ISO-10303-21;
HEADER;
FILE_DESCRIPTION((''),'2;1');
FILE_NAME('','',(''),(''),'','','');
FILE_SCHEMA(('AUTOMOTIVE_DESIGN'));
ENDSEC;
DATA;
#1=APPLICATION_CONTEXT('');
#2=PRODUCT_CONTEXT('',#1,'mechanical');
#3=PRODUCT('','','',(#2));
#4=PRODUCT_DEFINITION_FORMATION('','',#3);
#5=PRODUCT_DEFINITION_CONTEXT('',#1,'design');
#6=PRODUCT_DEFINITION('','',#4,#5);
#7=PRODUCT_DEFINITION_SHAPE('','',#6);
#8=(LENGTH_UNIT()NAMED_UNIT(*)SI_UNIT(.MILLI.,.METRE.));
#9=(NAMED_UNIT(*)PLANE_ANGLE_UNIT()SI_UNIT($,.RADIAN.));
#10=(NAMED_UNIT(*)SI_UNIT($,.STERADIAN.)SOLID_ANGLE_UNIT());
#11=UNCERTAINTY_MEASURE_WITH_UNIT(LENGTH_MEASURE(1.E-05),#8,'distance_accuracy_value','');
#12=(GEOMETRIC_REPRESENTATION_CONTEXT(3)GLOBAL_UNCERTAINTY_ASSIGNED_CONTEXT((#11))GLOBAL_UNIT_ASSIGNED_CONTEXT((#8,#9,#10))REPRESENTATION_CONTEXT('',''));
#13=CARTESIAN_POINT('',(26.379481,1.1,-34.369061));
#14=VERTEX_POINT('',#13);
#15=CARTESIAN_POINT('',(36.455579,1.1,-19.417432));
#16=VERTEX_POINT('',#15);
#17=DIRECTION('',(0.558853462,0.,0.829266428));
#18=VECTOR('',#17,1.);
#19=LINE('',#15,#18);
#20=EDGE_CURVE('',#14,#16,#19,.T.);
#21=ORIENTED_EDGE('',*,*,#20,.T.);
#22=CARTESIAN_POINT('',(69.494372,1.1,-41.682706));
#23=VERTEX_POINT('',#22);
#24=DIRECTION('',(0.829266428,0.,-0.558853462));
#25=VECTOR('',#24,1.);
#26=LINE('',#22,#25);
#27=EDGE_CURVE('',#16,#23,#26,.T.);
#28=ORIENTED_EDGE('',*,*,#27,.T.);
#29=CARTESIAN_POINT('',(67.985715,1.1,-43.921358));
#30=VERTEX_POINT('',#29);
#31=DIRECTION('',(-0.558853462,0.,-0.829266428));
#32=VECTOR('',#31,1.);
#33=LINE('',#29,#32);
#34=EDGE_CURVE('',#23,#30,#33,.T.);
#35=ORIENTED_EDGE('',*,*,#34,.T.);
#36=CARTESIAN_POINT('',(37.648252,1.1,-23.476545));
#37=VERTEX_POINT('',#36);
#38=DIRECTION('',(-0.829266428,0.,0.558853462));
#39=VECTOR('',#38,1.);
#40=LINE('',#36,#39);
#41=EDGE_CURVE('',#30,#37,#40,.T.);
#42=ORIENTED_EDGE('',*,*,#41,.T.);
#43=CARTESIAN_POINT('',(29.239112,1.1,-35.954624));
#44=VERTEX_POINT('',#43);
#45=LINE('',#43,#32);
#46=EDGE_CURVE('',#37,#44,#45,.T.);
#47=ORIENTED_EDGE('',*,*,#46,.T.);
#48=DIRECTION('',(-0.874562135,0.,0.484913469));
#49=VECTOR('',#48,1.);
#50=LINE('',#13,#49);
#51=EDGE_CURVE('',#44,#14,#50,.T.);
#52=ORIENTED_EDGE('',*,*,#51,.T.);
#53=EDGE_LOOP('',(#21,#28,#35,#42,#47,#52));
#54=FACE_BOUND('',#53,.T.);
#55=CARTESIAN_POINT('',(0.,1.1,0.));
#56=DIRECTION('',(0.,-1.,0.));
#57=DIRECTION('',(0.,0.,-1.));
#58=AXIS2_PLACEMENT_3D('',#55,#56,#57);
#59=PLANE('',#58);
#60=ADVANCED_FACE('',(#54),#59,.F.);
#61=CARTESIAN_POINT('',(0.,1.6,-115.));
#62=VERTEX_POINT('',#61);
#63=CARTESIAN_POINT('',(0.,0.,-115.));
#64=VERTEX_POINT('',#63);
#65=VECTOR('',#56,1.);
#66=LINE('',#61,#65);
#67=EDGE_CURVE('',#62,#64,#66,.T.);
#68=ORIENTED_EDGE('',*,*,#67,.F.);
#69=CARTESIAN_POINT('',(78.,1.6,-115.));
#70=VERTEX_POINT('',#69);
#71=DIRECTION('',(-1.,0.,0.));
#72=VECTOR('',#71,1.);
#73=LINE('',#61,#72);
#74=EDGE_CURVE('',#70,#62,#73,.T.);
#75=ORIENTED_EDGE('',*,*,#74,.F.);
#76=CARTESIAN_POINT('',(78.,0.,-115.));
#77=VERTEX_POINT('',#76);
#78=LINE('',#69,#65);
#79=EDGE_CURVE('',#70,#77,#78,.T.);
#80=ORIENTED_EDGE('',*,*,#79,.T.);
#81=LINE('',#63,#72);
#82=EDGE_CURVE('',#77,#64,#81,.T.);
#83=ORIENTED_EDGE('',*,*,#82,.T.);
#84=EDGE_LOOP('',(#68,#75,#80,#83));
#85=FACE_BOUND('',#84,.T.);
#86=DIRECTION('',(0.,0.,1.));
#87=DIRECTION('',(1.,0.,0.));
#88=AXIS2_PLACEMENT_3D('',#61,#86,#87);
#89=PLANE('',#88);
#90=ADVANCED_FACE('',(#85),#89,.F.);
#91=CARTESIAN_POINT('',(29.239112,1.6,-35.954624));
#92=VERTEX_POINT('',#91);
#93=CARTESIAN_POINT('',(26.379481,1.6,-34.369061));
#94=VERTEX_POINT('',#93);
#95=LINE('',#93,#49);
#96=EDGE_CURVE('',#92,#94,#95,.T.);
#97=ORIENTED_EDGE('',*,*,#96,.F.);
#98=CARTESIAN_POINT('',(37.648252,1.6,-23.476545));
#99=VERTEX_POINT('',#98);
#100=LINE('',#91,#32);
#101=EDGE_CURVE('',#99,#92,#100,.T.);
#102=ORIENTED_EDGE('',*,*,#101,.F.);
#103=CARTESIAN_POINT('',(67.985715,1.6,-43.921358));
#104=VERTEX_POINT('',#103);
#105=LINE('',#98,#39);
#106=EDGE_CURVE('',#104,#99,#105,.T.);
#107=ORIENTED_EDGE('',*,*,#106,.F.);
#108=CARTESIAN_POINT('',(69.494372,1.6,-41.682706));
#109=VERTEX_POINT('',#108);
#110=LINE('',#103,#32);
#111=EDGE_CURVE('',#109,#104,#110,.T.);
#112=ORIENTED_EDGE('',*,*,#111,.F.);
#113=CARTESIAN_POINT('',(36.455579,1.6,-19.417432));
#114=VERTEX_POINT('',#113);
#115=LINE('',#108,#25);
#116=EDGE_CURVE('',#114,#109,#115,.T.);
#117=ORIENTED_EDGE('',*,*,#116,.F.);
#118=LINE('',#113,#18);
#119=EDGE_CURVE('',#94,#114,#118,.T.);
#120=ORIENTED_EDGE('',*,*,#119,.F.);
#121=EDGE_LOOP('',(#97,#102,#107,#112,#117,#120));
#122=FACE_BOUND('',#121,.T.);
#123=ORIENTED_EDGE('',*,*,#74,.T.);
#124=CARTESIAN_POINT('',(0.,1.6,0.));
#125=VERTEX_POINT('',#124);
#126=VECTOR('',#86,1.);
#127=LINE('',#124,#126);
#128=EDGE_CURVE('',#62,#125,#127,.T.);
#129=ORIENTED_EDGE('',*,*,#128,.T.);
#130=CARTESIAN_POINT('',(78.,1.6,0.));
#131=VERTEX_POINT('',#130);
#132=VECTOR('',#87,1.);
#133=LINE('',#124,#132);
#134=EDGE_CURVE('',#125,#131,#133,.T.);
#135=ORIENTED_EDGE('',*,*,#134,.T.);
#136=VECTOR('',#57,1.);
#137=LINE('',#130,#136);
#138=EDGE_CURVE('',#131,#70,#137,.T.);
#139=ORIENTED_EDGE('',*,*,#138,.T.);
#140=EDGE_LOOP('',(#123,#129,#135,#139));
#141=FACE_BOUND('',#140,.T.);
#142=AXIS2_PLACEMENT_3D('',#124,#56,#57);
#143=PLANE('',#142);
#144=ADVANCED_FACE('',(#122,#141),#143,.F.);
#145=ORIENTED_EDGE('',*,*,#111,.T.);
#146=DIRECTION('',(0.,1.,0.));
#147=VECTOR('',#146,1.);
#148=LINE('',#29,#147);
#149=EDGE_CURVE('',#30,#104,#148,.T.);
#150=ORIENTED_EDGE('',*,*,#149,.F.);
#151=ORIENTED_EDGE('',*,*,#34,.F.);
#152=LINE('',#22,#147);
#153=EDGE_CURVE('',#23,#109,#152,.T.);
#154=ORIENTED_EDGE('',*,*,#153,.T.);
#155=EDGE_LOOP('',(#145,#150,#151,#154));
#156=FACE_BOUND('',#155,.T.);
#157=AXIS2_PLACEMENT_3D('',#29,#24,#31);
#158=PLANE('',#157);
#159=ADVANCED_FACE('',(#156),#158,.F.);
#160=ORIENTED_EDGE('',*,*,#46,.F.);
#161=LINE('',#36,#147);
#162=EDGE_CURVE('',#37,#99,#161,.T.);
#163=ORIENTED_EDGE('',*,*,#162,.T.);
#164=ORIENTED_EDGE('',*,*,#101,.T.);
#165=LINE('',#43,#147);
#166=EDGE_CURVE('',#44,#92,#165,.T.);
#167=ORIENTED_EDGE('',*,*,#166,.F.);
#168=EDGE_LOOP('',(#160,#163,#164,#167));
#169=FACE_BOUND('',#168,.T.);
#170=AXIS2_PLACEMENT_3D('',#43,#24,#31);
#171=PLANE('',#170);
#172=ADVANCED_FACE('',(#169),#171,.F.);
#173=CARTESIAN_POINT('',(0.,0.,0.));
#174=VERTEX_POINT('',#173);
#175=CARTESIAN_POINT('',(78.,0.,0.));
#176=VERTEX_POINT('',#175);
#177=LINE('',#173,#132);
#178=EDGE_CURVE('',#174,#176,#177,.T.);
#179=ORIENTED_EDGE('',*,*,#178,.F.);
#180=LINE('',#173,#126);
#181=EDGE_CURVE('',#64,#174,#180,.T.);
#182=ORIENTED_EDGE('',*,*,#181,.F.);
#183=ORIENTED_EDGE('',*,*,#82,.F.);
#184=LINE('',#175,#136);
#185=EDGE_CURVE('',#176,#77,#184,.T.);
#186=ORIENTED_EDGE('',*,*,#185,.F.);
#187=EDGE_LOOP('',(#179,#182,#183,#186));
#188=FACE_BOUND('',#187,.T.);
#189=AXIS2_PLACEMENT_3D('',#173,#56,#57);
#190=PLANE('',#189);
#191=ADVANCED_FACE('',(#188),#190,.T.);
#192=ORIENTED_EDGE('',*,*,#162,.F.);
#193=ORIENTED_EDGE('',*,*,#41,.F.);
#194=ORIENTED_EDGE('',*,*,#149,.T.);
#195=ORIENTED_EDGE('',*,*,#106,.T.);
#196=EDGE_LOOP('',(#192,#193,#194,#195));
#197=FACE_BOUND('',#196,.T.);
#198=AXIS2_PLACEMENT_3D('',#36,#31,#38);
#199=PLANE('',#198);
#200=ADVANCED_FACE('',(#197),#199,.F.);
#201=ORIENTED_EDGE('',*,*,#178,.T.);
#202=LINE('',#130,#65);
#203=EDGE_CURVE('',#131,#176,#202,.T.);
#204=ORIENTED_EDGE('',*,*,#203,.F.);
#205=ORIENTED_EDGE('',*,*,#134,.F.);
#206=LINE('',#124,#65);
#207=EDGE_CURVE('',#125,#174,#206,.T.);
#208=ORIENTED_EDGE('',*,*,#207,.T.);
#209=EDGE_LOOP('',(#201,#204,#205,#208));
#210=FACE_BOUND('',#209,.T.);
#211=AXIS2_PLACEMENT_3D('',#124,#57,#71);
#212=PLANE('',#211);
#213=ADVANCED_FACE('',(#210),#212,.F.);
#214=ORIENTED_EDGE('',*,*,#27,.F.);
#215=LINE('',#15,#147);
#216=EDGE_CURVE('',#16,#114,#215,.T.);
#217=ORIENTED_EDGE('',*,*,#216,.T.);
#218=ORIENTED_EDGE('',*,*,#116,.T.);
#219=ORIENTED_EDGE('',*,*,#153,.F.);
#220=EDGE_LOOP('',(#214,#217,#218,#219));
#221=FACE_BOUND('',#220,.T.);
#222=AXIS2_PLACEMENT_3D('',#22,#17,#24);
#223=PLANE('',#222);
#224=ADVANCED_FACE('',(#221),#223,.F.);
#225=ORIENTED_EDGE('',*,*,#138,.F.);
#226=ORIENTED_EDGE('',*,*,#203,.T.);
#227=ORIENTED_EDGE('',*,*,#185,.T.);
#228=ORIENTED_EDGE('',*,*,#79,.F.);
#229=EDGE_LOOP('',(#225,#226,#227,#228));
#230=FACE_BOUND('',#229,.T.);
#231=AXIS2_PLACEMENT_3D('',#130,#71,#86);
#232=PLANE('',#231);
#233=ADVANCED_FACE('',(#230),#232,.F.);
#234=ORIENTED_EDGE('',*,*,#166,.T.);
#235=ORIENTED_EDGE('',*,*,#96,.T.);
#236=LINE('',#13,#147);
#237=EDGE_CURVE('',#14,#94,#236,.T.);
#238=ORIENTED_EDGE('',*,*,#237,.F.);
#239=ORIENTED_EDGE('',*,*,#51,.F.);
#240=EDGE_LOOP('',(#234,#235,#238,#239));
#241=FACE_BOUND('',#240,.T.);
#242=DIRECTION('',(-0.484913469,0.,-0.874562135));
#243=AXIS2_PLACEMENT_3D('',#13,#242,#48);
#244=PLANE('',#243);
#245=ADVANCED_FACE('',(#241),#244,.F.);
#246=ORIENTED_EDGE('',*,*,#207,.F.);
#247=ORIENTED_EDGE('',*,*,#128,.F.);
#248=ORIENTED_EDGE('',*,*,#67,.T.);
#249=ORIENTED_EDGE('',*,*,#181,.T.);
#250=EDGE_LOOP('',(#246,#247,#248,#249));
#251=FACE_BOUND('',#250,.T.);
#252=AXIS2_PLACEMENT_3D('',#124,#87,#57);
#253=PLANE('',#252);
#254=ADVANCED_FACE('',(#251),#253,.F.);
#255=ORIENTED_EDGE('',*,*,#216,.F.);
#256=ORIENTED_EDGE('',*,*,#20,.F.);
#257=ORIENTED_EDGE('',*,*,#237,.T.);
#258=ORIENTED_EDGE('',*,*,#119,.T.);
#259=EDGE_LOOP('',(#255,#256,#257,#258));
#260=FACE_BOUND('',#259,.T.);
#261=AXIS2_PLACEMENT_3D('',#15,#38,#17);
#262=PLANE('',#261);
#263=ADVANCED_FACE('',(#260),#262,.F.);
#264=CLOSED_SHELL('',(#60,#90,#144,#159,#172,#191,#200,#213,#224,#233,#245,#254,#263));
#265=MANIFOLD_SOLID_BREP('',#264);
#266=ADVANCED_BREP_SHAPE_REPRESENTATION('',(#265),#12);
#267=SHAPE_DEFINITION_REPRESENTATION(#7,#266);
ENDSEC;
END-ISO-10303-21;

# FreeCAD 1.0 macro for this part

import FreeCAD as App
import Part
import Sketcher
from FreeCAD import Vector


def add_polygon(sketch, points):
    """Adds a closed chain of lines whose ends are joined by coincident constraints."""
    first, n = sketch.GeometryCount, len(points)
    for a, b in zip(points, points[1:] + points[:1]):
        sketch.addGeometry(Part.LineSegment(App.Vector(*a, 0), App.Vector(*b, 0)), False)
    for i in range(n):
        sketch.addConstraint(Sketcher.Constraint("Coincident", first + i, 2, first + (i + 1) % n, 1))

doc = App.newDocument("Part")
body = doc.addObject("PartDesign::Body", "Body")

# Sketch on XZ plane
sketch1 = doc.addObject("Sketcher::SketchObject", "Sketch")
body.addObject(sketch1)
sketch1.AttachmentSupport = (doc.XZ_Plane, [""])
sketch1.MapMode = "FlatFace"
add_polygon(sketch1, [(0, -115), (0, 0), (78, 0), (78, -115)])  # lines 0-3
sketch1.addConstraint(Sketcher.Constraint("Vertical", 0))
sketch1.addConstraint(Sketcher.Constraint("Horizontal", 1))
sketch1.addConstraint(Sketcher.Constraint("Vertical", 2))
sketch1.addConstraint(Sketcher.Constraint("Horizontal", 3))
sketch1.addConstraint(Sketcher.Constraint("Coincident", 0, 2, -1, 1))
sketch1.addConstraint(Sketcher.Constraint("DistanceX", 1, 1, 1, 2, 78.0))
sketch1.addConstraint(Sketcher.Constraint("DistanceY", 0, 1, 0, 2, 115.0))
pad1 = doc.addObject("PartDesign::Pad", "Pad")
body.addObject(pad1)
pad1.Profile = sketch1
pad1.Length = 1.6
pad1.Reversed = True

# Sketch on XZ plane
sketch2 = doc.addObject("Sketcher::SketchObject", "Sketch001")
body.addObject(sketch2)
sketch2.AttachmentSupport = (doc.XZ_Plane, [""])
sketch2.MapMode = "FlatFace"
sketch2.AttachmentOffset = App.Placement(Vector(0, 0, -1.6), App.Rotation())
add_polygon(sketch2, [(37.6, -23.5), (29.2, -36), (26.4, -34.4), (36.5, -19.4), (69.5, -41.7), (68, -43.9)])  # lines 0-5
sketch2.addConstraint(Sketcher.Constraint("Parallel", 0, 2))
sketch2.addConstraint(Sketcher.Constraint("Perpendicular", 2, 3))
sketch2.addConstraint(Sketcher.Constraint("Perpendicular", 3, 4))
sketch2.addConstraint(Sketcher.Constraint("Perpendicular", 4, 5))
sketch2.addConstraint(Sketcher.Constraint("Distance", 0, 15.047129))
sketch2.addConstraint(Sketcher.Constraint("DistanceX", -1, 1, 0, 2, 29.239112))
sketch2.addConstraint(Sketcher.Constraint("DistanceX", -1, 1, 1, 2, 26.379481))
sketch2.addConstraint(Sketcher.Constraint("DistanceY", 1, 2, -1, 1, 34.369061))
sketch2.addConstraint(Sketcher.Constraint("DistanceX", -1, 1, 2, 2, 36.455579))
sketch2.addConstraint(Sketcher.Constraint("DistanceX", -1, 1, 3, 2, 69.494372))
sketch2.addConstraint(Sketcher.Constraint("DistanceX", -1, 1, 5, 2, 37.648252))
sketch2.addConstraint(Sketcher.Constraint("DistanceY", 0, 2, 2, 2, 16.537192))
pocket1 = doc.addObject("PartDesign::Pocket", "Pocket")
body.addObject(pocket1)
pocket1.Profile = sketch2
pocket1.Length = 0.5
pocket1.Reversed = True

doc.recompute()
